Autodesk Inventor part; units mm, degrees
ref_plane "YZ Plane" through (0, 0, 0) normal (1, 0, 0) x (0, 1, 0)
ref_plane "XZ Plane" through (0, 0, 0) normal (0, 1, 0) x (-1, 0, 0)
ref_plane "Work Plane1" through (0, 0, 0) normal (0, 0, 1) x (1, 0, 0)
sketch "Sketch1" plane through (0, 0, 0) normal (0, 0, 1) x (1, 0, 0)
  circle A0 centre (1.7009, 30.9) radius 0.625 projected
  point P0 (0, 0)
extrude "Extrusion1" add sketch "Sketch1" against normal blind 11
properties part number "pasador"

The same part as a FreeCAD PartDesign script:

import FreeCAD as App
import Part
import Sketcher
from FreeCAD import Vector
Q = App.Units.Quantity

doc = App.newDocument("Part")
body = doc.addObject("PartDesign::Body", "Body")

# Sketch on XY plane
sketch1 = body.newObject("Sketcher::SketchObject", "Sketch")
sketch1.AttachmentSupport = (doc.getObject("XY_Plane"), [""])
sketch1.MapMode = "FlatFace"
sketch1.addGeometry(Part.Circle(Vector(1.7, 30.9, 0), Vector(0, 0, 1), 0.6), False)
sketch1.addConstraint(Sketcher.Constraint("Diameter", 0, Q("1.25 mm")))
sketch1.addConstraint(Sketcher.Constraint("DistanceY", -1, 1, 0, 3, Q("30.9 mm")))
sketch1.addConstraint(Sketcher.Constraint("DistanceX", -1, 1, 0, 3, Q("1.701 mm")))
pad1 = body.newObject("PartDesign::Pad", "Pad")
pad1.Profile = sketch1
pad1.Length = 11
pad1.Reversed = True

doc.recompute()
